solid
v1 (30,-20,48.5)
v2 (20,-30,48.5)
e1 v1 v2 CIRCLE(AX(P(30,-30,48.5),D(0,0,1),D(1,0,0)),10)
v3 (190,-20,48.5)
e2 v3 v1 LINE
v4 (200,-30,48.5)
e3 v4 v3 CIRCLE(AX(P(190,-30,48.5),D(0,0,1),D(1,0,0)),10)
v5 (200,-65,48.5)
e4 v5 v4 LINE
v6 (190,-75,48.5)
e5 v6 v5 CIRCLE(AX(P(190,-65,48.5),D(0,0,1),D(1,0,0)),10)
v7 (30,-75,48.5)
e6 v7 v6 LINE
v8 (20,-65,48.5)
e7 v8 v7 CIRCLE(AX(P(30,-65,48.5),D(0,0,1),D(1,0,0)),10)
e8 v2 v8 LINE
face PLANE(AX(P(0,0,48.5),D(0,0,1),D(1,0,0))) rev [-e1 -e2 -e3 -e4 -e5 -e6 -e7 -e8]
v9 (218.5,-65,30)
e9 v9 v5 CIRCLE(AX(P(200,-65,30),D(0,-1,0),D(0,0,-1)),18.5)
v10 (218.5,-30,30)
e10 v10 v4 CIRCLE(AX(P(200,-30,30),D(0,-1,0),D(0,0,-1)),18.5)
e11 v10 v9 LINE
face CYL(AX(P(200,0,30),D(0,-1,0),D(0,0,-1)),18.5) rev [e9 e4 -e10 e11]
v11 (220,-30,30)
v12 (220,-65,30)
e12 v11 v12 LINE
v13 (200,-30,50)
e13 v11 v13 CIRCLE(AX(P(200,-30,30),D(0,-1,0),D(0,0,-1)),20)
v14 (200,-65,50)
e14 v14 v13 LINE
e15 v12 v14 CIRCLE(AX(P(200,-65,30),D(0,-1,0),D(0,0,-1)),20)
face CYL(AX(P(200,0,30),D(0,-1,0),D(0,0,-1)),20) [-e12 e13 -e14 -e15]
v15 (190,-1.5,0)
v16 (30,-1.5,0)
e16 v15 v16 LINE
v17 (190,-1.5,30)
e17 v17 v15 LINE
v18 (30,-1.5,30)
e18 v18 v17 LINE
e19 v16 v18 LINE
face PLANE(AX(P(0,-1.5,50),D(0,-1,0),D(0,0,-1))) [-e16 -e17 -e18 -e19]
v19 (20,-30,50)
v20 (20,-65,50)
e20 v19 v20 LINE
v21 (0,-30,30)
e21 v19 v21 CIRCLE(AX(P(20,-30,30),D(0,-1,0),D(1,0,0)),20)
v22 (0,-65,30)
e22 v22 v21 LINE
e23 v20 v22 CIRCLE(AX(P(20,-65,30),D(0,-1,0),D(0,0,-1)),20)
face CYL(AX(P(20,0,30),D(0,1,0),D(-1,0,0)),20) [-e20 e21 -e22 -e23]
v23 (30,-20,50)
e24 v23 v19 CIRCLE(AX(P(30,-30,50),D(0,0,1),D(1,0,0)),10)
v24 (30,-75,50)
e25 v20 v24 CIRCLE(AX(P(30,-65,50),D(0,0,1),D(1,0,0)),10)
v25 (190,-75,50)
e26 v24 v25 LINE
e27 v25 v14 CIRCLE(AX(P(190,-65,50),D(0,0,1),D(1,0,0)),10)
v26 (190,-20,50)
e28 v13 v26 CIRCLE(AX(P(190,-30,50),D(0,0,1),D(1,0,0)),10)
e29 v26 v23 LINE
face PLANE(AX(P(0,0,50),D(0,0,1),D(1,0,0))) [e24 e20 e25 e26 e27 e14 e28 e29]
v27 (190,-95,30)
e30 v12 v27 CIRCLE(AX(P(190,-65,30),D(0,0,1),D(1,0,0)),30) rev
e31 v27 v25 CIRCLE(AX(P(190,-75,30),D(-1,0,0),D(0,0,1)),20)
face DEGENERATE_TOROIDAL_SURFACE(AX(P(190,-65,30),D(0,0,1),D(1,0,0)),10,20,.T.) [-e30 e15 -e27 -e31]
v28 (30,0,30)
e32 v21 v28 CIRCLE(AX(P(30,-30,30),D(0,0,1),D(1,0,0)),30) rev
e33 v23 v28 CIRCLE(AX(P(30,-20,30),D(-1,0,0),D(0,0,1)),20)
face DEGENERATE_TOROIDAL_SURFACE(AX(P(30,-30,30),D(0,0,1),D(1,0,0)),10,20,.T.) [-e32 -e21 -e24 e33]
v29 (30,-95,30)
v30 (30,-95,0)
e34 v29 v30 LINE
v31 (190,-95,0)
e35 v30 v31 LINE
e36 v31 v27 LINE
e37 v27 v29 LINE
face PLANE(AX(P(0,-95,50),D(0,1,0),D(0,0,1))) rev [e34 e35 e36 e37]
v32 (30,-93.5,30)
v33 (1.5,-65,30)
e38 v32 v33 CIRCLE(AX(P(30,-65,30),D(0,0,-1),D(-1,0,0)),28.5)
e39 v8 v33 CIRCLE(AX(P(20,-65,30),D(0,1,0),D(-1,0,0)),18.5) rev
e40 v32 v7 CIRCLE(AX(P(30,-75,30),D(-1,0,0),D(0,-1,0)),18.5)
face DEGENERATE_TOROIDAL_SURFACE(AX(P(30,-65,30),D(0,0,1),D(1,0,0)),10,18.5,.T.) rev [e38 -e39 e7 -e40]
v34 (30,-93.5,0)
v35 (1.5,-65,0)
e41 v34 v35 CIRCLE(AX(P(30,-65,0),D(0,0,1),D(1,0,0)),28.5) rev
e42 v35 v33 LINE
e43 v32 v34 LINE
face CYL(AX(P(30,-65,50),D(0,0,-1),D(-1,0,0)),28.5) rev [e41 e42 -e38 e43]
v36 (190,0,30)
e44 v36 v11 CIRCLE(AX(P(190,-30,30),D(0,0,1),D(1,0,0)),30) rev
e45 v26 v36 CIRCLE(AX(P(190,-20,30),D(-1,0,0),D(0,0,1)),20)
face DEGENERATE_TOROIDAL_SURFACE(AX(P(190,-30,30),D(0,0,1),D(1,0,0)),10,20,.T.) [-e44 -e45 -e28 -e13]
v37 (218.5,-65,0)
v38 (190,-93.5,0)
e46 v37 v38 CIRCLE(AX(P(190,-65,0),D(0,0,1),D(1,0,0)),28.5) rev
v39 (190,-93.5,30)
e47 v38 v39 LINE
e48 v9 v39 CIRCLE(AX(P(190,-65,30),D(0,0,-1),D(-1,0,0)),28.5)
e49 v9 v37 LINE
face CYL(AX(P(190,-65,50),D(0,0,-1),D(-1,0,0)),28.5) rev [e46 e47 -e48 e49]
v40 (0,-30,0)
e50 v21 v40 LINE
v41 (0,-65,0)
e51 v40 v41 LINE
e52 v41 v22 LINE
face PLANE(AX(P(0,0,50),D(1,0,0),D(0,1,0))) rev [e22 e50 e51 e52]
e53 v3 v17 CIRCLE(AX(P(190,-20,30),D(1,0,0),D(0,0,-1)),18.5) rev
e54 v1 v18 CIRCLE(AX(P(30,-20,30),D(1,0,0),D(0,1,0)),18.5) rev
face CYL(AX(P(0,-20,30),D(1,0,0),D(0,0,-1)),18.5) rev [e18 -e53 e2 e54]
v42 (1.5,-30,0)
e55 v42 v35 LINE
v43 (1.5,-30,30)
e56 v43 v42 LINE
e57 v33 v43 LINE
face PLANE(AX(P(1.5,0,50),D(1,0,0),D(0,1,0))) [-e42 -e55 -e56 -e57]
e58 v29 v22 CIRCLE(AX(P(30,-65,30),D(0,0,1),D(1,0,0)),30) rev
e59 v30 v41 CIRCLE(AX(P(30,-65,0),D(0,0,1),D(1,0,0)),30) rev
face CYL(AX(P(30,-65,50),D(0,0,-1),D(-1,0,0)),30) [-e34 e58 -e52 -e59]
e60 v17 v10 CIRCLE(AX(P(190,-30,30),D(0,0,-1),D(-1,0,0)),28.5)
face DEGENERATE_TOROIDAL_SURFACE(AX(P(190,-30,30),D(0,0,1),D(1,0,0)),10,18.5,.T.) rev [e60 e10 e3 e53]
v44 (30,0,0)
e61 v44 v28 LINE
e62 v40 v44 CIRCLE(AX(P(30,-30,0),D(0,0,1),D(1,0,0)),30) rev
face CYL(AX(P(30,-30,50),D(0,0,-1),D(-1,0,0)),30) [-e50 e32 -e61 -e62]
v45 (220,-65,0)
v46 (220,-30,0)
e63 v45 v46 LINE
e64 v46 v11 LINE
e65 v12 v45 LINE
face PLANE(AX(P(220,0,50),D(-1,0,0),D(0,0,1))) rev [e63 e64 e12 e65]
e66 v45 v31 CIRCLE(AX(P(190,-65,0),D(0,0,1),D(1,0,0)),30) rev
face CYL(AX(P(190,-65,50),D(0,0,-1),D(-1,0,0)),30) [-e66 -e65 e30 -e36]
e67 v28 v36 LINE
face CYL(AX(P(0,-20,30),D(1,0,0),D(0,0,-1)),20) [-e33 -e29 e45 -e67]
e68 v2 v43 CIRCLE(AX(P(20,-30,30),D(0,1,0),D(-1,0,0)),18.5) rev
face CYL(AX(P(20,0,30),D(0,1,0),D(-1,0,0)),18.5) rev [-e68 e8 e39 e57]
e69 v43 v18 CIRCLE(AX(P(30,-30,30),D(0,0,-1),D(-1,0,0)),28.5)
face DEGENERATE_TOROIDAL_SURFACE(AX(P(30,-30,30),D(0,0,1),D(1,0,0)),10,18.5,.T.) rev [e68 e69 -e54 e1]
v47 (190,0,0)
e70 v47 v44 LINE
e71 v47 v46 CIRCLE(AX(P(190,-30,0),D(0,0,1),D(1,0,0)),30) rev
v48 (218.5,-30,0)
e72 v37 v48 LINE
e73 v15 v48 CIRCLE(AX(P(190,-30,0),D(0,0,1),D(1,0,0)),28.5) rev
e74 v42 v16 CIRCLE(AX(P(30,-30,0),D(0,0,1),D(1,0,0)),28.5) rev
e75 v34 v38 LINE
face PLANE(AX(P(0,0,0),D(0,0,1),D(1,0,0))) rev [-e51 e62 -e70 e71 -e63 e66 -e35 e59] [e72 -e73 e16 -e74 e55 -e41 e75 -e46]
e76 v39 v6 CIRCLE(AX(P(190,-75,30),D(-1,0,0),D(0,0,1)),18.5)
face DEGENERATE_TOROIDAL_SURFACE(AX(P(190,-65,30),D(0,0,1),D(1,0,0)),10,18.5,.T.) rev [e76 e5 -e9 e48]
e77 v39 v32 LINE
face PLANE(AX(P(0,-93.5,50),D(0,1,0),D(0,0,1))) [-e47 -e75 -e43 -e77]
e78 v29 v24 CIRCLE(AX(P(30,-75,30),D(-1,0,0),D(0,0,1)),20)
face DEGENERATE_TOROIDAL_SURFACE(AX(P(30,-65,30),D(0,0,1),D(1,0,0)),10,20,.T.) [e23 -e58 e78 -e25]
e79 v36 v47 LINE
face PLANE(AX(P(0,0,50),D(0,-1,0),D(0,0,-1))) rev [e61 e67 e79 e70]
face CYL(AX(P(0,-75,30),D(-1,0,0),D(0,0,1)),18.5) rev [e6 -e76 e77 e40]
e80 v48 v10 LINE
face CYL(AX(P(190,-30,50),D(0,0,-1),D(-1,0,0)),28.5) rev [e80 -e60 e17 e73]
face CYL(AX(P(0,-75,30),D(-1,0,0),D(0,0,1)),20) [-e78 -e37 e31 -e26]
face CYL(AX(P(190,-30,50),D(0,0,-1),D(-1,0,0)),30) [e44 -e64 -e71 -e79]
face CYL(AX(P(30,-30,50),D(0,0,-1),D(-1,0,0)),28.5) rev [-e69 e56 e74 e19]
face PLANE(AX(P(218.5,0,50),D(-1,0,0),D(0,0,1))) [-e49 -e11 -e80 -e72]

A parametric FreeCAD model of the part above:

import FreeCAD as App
import Part
import Sketcher
from FreeCAD import Vector
Q = App.Units.Quantity


def edges_at(feature, points):
    """Names of the edges that pass closest to the given points."""
    edges = feature.Shape.Edges
    near = lambda p: min(range(len(edges)), key=lambda i: edges[i].distToShape(Part.Vertex(*p))[0])
    return sorted({f"Edge{near(p) + 1}" for p in points})


def faces_at(feature, points):
    """Names of the faces that lie closest to the given points."""
    faces = feature.Shape.Faces
    near = lambda p: min(range(len(faces)), key=lambda i: faces[i].distToShape(Part.Vertex(*p))[0])
    return sorted({f"Face{near(p) + 1}" for p in points})


def add_polygon(sketch, points):
    """Adds a closed chain of lines whose ends are joined by coincident constraints."""
    first, n = sketch.GeometryCount, len(points)
    for a, b in zip(points, points[1:] + points[:1]):
        sketch.addGeometry(Part.LineSegment(App.Vector(*a, 0), App.Vector(*b, 0)), False)
    for i in range(n):
        sketch.addConstraint(Sketcher.Constraint("Coincident", first + i, 2, first + (i + 1) % n, 1))

doc = App.newDocument("Part")
body = doc.addObject("PartDesign::Body", "Body")

sketch1 = doc.addObject("Sketcher::SketchObject", "Sketch")
body.addObject(sketch1)
sketch1.AttachmentSupport = (doc.XY_Plane, [""])
sketch1.MapMode = "FlatFace"
add_polygon(sketch1, [(0, 0), (0, -95), (220, -95), (220, 0)])
sketch1.addConstraint([
    Sketcher.Constraint("Vertical", 0),
    Sketcher.Constraint("Horizontal", 1),
    Sketcher.Constraint("Vertical", 2),
    Sketcher.Constraint("Horizontal", 3),
    Sketcher.Constraint("Coincident", 3, 2, -1, 1),
    Sketcher.Constraint("DistanceX", 1, 1, 1, 2, Q("220 mm")),
    Sketcher.Constraint("DistanceY", 0, 2, 0, 1, Q("95 mm")),
])
pad1 = doc.addObject("PartDesign::Pad", "Pad")
body.addObject(pad1)
pad1.Profile = sketch1
pad1.Length = 50
doc.recompute()

fillet = doc.addObject("PartDesign::Fillet", "Fillet")
body.addObject(fillet)
fillet.Base = (pad1, edges_at(pad1, [
    (0, 0, 25),
    (220, 0, 25),
    (220, -95, 25),
    (0, -95, 25),
]))
fillet.Radius = 30
doc.recompute()

fillet2 = doc.addObject("PartDesign::Fillet", "Fillet001")
body.addObject(fillet2)
fillet2.Base = (fillet, edges_at(fillet, [
    (220, -47.5, 50),
    (110, -95, 50),
    (0, -47.5, 50),
    (110, 0, 50),
    (8.787, -8.787, 50),
    (8.787, -86.213, 50),
    (211.213, -8.787, 50),
    (211.213, -86.213, 50),
]))
fillet2.Radius = 20
doc.recompute()

thickness = doc.addObject("PartDesign::Thickness", "Thickness")
body.addObject(thickness)
thickness.Base = (fillet2, faces_at(fillet2, [(110, -47.5, 0)]))
thickness.Value = 1.5
thickness.Reversed = True
thickness.Join = "Intersection"

doc.recompute()
